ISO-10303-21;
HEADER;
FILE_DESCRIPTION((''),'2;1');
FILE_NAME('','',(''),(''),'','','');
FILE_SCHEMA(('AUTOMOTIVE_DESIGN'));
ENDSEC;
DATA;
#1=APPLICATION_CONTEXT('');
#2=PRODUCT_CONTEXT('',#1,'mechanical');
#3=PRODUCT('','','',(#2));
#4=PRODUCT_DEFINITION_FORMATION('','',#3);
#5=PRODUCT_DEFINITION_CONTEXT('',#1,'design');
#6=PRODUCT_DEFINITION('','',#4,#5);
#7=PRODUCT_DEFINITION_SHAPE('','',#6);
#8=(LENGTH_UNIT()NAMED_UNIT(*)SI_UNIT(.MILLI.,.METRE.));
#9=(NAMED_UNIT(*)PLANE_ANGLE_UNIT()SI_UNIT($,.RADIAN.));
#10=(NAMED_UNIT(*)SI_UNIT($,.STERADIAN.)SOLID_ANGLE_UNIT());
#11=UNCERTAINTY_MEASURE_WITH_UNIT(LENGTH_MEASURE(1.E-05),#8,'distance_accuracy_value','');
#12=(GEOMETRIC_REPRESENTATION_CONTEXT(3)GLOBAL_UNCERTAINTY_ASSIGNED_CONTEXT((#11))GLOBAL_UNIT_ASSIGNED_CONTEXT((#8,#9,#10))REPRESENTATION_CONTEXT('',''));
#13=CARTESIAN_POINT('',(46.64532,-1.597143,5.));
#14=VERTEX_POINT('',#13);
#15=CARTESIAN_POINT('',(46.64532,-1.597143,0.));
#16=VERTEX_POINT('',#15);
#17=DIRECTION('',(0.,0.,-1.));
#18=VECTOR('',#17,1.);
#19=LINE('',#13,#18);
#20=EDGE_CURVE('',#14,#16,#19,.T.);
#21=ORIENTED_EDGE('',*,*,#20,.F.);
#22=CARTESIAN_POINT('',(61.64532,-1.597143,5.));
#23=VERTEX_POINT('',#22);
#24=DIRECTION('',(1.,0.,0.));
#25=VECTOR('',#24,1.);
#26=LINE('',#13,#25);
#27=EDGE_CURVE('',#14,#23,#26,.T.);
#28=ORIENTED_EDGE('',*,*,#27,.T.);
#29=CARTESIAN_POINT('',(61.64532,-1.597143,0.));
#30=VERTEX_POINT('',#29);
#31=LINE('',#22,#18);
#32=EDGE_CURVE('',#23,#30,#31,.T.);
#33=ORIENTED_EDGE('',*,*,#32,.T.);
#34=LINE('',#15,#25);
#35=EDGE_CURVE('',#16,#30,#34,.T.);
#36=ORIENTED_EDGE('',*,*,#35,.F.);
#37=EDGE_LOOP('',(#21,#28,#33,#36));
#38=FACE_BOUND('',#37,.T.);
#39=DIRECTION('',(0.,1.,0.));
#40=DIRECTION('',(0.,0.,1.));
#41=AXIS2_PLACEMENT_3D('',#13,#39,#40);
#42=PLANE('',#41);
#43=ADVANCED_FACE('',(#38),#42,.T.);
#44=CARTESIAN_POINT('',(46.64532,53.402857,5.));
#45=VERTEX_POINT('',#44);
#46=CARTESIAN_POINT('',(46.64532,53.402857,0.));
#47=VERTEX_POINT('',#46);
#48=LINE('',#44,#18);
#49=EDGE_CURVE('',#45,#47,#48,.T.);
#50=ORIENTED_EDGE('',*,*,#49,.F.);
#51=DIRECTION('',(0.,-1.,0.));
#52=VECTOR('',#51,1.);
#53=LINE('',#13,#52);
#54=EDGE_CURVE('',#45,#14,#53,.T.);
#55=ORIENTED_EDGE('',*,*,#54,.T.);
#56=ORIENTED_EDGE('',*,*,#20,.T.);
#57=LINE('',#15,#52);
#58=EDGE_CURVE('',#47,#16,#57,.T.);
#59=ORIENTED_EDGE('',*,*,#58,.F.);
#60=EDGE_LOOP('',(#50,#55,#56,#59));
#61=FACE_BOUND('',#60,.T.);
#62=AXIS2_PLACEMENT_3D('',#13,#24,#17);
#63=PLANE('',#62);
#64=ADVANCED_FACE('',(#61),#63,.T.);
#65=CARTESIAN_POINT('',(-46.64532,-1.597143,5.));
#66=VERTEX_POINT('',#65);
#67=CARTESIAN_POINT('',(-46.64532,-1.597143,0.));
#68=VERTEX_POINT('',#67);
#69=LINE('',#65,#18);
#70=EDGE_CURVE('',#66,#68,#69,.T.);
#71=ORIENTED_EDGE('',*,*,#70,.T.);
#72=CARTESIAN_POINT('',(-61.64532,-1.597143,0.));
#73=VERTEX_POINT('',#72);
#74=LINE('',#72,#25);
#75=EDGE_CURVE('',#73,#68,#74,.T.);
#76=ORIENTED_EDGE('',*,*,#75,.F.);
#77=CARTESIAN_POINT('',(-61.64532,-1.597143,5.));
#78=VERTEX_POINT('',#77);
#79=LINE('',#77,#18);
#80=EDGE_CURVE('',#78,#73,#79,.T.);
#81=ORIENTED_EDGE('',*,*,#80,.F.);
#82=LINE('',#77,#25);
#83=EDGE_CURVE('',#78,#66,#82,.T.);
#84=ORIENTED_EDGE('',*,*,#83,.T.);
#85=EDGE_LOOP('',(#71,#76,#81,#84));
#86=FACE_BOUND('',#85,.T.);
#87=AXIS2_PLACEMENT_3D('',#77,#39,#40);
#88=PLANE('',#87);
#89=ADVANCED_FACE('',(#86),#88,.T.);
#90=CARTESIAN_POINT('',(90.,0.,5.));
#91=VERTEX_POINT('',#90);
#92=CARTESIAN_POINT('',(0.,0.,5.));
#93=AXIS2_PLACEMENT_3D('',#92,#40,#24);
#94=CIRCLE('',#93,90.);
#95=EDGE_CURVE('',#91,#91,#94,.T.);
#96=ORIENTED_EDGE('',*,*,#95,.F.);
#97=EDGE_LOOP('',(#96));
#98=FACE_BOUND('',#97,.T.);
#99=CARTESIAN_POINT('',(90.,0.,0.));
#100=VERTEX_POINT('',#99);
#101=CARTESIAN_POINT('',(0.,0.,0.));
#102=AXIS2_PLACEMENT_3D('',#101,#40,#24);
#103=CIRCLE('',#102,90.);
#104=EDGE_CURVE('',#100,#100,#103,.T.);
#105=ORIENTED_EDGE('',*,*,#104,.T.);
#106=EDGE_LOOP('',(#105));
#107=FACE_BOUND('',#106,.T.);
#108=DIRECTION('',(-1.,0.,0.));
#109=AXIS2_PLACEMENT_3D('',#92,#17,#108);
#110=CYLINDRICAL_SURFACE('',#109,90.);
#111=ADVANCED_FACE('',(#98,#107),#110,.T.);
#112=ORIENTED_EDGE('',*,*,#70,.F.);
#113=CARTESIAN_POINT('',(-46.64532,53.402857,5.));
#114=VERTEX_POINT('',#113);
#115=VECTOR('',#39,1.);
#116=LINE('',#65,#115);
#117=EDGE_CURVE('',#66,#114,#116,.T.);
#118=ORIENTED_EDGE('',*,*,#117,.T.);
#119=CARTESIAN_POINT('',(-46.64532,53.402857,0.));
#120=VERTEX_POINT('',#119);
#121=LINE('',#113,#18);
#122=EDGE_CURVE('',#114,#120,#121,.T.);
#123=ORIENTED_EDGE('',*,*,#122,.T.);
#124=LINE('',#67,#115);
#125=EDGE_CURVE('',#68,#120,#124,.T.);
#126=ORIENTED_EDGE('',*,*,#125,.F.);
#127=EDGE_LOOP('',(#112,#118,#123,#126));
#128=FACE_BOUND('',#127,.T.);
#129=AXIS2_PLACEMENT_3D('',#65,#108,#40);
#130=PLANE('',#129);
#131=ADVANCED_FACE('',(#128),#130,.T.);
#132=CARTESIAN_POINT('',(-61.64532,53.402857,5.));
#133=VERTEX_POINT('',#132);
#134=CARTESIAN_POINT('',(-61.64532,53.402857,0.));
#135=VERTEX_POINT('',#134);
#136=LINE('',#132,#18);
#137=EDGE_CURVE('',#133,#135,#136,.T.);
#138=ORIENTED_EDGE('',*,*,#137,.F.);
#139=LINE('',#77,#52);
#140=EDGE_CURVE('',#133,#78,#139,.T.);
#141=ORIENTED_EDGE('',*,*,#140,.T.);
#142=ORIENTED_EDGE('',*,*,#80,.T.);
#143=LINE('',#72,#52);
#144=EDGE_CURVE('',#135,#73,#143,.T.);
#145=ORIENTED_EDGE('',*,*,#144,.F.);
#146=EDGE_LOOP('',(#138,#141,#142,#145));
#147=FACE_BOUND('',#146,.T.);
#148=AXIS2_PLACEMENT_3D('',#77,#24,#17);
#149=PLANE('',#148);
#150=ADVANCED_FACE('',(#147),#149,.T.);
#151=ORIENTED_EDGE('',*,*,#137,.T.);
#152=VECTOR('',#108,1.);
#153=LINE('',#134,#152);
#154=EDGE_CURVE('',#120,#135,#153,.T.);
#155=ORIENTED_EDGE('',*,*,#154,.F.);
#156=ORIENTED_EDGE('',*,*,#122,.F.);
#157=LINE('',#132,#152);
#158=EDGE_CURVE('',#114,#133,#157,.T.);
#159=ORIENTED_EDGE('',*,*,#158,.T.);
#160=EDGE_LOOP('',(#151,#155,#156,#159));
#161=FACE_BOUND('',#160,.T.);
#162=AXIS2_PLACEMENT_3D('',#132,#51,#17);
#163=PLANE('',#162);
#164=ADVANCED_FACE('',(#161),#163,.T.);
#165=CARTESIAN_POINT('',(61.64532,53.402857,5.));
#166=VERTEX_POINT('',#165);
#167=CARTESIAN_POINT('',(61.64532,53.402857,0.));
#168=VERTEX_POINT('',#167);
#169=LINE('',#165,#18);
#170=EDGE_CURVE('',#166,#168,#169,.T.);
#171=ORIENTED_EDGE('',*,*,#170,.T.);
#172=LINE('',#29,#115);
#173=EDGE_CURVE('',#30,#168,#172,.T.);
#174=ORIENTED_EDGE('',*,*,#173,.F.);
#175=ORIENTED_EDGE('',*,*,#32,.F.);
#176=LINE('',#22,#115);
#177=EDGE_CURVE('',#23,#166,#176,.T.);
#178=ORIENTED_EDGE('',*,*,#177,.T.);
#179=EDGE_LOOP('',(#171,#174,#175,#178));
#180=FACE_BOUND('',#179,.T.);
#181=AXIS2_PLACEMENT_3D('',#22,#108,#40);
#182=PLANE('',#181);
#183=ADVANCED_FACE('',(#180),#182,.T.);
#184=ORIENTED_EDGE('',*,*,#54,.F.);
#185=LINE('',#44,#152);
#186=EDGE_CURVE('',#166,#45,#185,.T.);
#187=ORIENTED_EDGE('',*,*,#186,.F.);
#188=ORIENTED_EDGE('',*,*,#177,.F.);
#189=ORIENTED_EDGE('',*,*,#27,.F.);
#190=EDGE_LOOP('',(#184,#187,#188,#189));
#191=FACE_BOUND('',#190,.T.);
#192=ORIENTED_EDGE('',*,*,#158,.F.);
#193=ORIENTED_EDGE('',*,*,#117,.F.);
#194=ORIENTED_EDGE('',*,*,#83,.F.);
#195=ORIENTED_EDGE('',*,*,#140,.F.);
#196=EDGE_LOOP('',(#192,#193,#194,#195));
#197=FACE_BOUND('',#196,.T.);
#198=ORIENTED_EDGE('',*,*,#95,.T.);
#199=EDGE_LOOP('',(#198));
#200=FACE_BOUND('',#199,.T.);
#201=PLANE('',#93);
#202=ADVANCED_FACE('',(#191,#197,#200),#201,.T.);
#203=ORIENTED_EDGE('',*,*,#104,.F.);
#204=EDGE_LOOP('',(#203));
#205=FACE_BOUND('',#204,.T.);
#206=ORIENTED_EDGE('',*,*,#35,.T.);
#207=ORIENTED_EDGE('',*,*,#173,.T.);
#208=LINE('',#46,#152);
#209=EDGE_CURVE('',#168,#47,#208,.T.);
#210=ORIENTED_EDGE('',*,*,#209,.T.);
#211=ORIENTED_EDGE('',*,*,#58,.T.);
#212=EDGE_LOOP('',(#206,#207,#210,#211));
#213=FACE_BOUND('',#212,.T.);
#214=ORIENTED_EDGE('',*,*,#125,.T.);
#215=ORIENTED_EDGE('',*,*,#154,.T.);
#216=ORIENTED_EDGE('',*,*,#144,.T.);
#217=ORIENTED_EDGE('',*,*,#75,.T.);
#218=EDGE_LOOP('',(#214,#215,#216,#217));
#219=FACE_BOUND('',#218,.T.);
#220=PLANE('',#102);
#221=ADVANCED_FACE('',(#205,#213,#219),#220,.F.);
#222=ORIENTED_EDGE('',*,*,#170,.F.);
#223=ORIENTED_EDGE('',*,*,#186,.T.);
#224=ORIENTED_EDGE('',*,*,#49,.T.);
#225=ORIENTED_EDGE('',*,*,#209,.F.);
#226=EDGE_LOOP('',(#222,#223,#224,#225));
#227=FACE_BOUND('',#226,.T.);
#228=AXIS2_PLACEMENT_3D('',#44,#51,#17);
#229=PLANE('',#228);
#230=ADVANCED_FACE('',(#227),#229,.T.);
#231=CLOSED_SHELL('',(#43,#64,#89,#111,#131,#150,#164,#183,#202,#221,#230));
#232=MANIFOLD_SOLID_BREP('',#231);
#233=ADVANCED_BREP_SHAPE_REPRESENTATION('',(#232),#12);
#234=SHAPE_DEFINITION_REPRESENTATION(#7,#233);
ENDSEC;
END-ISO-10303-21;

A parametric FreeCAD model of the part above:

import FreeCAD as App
import Part
import Sketcher

V = App.Vector

doc = App.newDocument("Part")
body = doc.addObject("PartDesign::Body", "Body")

sketch1 = body.newObject("Sketcher::SketchObject", "Sketch")
sketch1.AttachmentSupport = (doc.getObject("XY_Plane"), [""])
sketch1.MapMode = "FlatFace"
sketch1.addGeometry([
    Part.Circle(V(0, 0, 0), V(0, 0, 1), 90),
    Part.LineSegment(V(-47, -2, 0), V(-62, -2, 0)),
    Part.LineSegment(V(-62, -2, 0), V(-62, 53, 0)),
    Part.LineSegment(V(-62, 53, 0), V(-47, 53, 0)),
    Part.LineSegment(V(-47, 53, 0), V(-47, -2, 0)),
    Part.LineSegment(V(62, -2, 0), V(47, -2, 0)),
    Part.LineSegment(V(47, -2, 0), V(47, 53, 0)),
    Part.LineSegment(V(47, 53, 0), V(62, 53, 0)),
    Part.LineSegment(V(62, 53, 0), V(62, -2, 0)),
], False)
sketch1.addConstraint([
    Sketcher.Constraint("Coincident", 1, 2, 2, 1),
    Sketcher.Constraint("Coincident", 2, 2, 3, 1),
    Sketcher.Constraint("Coincident", 3, 2, 4, 1),
    Sketcher.Constraint("Coincident", 4, 2, 1, 1),
    Sketcher.Constraint("Coincident", 5, 2, 6, 1),
    Sketcher.Constraint("Coincident", 6, 2, 7, 1),
    Sketcher.Constraint("Coincident", 7, 2, 8, 1),
    Sketcher.Constraint("Coincident", 8, 2, 5, 1),
    Sketcher.Constraint("Horizontal", 1),
    Sketcher.Constraint("Vertical", 2),
    Sketcher.Constraint("Horizontal", 3),
    Sketcher.Constraint("Vertical", 4),
    Sketcher.Constraint("Horizontal", 5),
    Sketcher.Constraint("Vertical", 6),
    Sketcher.Constraint("Horizontal", 7),
    Sketcher.Constraint("Vertical", 8),
    Sketcher.Constraint("Coincident", 0, 3, -1, 1),
    Sketcher.Constraint("Symmetric", 4, 2, 5, 2, -2),
    Sketcher.Constraint("Symmetric", 2, 2, 7, 2, -2),
    Sketcher.Constraint("Diameter", 0, 180.0),
    Sketcher.Constraint("DistanceX", 1, 2, 1, 1, 15.0),
    Sketcher.Constraint("DistanceY", 2, 1, 2, 2, 55.0),
    Sketcher.Constraint("DistanceX", 1, 2, -1, 1, 61.64532),
    Sketcher.Constraint("DistanceY", 1, 2, -1, 1, 1.597143),
])
pad1 = body.newObject("PartDesign::Pad", "Pad")
pad1.Profile = sketch1
pad1.Length = 5

doc.recompute()
